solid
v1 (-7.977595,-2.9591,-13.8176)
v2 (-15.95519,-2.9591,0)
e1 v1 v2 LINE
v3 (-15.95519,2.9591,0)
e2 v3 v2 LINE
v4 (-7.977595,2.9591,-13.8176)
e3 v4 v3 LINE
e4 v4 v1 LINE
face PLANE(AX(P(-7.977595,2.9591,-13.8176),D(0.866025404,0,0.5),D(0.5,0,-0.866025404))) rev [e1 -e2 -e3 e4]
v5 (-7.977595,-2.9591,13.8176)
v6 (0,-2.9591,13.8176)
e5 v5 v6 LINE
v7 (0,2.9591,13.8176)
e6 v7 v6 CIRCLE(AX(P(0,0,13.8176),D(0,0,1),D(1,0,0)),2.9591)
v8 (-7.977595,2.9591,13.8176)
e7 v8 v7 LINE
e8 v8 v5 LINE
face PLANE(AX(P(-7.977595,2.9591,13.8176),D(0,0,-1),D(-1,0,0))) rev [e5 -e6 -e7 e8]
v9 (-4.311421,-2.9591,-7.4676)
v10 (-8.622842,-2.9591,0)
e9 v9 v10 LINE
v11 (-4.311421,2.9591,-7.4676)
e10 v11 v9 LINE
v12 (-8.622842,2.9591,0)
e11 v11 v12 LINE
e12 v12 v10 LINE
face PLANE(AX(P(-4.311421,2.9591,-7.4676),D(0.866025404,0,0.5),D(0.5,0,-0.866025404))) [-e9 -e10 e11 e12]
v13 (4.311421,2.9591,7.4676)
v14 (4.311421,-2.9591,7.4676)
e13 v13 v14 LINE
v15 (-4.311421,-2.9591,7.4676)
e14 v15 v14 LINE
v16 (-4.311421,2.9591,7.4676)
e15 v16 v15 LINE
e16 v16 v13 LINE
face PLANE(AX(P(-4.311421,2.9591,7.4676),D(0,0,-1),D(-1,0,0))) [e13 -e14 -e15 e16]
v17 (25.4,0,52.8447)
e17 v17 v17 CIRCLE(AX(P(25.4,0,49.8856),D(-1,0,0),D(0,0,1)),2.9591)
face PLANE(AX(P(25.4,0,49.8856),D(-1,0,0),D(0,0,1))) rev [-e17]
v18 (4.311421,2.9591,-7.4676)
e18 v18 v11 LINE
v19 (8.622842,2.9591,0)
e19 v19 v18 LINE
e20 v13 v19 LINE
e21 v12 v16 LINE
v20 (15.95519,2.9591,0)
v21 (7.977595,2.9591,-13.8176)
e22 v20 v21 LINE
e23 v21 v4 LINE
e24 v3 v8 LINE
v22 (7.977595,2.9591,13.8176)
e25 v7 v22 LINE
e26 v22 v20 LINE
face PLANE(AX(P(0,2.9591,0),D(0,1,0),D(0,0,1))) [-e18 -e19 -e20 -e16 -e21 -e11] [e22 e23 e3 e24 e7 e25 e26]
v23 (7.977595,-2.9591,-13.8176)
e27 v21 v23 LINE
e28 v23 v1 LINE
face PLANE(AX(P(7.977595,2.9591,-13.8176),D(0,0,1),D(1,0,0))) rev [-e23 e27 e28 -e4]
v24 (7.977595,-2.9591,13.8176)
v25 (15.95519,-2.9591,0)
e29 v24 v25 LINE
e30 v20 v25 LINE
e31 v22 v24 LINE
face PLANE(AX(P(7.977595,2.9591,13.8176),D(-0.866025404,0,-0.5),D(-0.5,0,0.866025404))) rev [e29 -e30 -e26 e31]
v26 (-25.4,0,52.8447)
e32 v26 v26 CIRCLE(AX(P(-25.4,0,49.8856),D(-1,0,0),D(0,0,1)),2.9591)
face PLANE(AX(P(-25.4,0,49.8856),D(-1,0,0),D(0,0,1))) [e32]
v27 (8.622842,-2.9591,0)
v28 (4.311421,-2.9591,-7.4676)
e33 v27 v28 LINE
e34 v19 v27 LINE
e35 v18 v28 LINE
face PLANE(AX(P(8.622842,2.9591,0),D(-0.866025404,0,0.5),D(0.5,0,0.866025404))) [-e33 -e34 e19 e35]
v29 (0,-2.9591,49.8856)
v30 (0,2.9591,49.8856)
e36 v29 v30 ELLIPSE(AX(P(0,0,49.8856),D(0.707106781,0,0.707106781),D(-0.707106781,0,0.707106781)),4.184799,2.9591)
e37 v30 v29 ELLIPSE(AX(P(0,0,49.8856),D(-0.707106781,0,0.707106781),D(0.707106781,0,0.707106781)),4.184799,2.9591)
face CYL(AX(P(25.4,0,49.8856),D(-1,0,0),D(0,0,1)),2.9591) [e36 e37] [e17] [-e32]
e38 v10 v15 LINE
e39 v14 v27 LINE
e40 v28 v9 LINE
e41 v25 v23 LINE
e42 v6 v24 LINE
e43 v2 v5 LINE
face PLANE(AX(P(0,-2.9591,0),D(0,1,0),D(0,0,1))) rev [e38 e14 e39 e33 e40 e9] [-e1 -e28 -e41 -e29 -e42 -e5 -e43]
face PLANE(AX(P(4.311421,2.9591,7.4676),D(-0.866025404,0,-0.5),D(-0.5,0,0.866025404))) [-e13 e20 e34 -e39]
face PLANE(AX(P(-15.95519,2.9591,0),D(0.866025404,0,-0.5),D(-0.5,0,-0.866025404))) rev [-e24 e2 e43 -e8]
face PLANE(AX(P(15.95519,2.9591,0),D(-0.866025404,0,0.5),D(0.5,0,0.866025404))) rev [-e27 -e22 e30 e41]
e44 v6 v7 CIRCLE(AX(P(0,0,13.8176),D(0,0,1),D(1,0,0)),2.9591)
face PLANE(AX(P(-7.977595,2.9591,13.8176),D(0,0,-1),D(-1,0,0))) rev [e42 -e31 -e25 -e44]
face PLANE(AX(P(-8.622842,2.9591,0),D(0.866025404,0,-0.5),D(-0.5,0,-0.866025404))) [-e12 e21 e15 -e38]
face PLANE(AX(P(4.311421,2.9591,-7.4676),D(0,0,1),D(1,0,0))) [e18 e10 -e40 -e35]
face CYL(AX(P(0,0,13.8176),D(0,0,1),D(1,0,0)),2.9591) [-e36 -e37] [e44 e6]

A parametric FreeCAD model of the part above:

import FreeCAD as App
import Part
import Sketcher
Q = App.Units.Quantity


def add_polygon(sketch, points):
    """Adds a closed chain of lines whose ends are joined by coincident constraints."""
    first, n = sketch.GeometryCount, len(points)
    for a, b in zip(points, points[1:] + points[:1]):
        sketch.addGeometry(Part.LineSegment(App.Vector(*a, 0), App.Vector(*b, 0)), False)
    for i in range(n):
        sketch.addConstraint(Sketcher.Constraint("Coincident", first + i, 2, first + (i + 1) % n, 1))

doc = App.newDocument("Part")
body = doc.addObject("PartDesign::Body", "Body")

sketch1 = body.newObject("Sketcher::SketchObject", "Sketch")
sketch1.AttachmentSupport = (doc.getObject("XZ_Plane"), [""])
sketch1.MapMode = "FlatFace"
add_polygon(sketch1, [(8, -14), (-8, -14), (-16, 0), (-8, 14), (8, 14), (16, 0)])
add_polygon(sketch1, [(4, -7), (9, 0), (4, 7), (-4, 7), (-9, 0), (-4, -7)])
sketch1.addConstraint([
    Sketcher.Constraint("Horizontal", 0),
    Sketcher.Constraint("Horizontal", 3),
    Sketcher.Constraint("Horizontal", 8),
    Sketcher.Constraint("Horizontal", 11),
    Sketcher.Constraint("Symmetric", 0, 2, 3, 2, -1, 1),
    Sketcher.Constraint("Symmetric", 1, 2, 4, 2, -1, 1),
    Sketcher.Constraint("Symmetric", 6, 2, 9, 2, -1, 1),
    Sketcher.Constraint("Symmetric", 7, 2, 10, 2, -1, 1),
    Sketcher.Constraint("PointOnObject", 1, 2, -1),
    Sketcher.Constraint("PointOnObject", 6, 2, -1),
    Sketcher.Constraint("Parallel", 2, 5),
    Sketcher.Constraint("Parallel", 5, 6),
    Sketcher.Constraint("Parallel", 4, 7),
    Sketcher.Constraint("Parallel", 6, 9),
    Sketcher.Constraint("Vertical", 0, 2, 2, 2),
    Sketcher.Constraint("Angle", 1, Q("120 deg")),
    Sketcher.Constraint("DistanceY", 7, 2, 3, 2, Q("0.25 in")),
    Sketcher.Constraint("DistanceY", 0, 2, -1, 1, Q("0.544 in")),
    Sketcher.Constraint("DistanceX", 0, 2, 0, 1, 15.95519),
    Sketcher.Constraint("DistanceX", 8, 2, 8, 1, 8.622842),
])
pad1 = body.newObject("PartDesign::Pad", "Pad")
pad1.Profile = sketch1
pad1.Length = Q("0.233 in")
pad1.Midplane = True

sketch2 = body.newObject("Sketcher::SketchObject", "Sketch001")
sketch2.AttachmentSupport = (doc.getObject("XY_Plane"), [""])
sketch2.MapMode = "FlatFace"
sketch2.AttachmentOffset = App.Placement(App.Vector(0, 0, 0.544 * 25.4), App.Rotation())
sketch2.addGeometry(Part.Circle(App.Vector(0, 0, 0), App.Vector(0, 0, 1), 3), False)
sketch2.addConstraint([
    Sketcher.Constraint("Coincident", 0, 3, -1, 1),
    Sketcher.Constraint("Diameter", 0, Q("0.233 in")),
])

sketch3 = body.newObject("Sketcher::SketchObject", "Sketch002")
sketch3.AttachmentSupport = (doc.getObject("XZ_Plane"), [""])
sketch3.MapMode = "FlatFace"
sketch3.addGeometry(Part.LineSegment(App.Vector(0, 14, 0), App.Vector(0, 50, 0)), False)
sketch3.addConstraint([
    Sketcher.Constraint("Vertical", 0),
    Sketcher.Constraint("PointOnObject", 0, 1, -2),
    Sketcher.Constraint("DistanceY", 0, 1, 0, 2, Q("1.42 in")),
    Sketcher.Constraint("DistanceY", -1, 1, 0, 1, Q("0.544 in")),
])
doc.recompute()

additivepipe = body.newObject("PartDesign::AdditivePipe", "AdditivePipe")
additivepipe.Profile = sketch2
additivepipe.Spine = (sketch3, ["Edge1"])

sketch4 = body.newObject("Sketcher::SketchObject", "Sketch003")
sketch4.AttachmentSupport = (doc.getObject("YZ_Plane"), [""])
sketch4.MapMode = "FlatFace"
sketch4.AttachmentOffset = App.Placement(App.Vector(0, 0, 1 * 25.4), App.Rotation())
sketch4.addGeometry(Part.Circle(App.Vector(0, 49.9, 0), App.Vector(0, 0, 1), 3), False)
sketch4.addConstraint([
    Sketcher.Constraint("PointOnObject", 0, 3, -2),
    Sketcher.Constraint("Diameter", 0, Q("0.233 in")),
    Sketcher.Constraint("DistanceY", -1, 1, 0, 3, Q("1.964 in")),
])

sketch5 = body.newObject("Sketcher::SketchObject", "Sketch004")
sketch5.AttachmentSupport = (doc.getObject("XY_Plane"), [""])
sketch5.MapMode = "FlatFace"
sketch5.AttachmentOffset = App.Placement(App.Vector(0, 0, 1.964 * 25.4), App.Rotation())
sketch5.addGeometry(Part.LineSegment(App.Vector(25, 0, 0), App.Vector(-25, 0, 0)), False)
sketch5.addConstraint([
    Sketcher.Constraint("Horizontal", 0),
    Sketcher.Constraint("Symmetric", 0, 1, 0, 2, -1, 1),
    Sketcher.Constraint("DistanceX", 0, 2, 0, 1, Q("2 in")),
])
doc.recompute()

additivepipe2 = body.newObject("PartDesign::AdditivePipe", "AdditivePipe001")
additivepipe2.Profile = sketch4
additivepipe2.Spine = (sketch5, ["Edge1"])

doc.recompute()
